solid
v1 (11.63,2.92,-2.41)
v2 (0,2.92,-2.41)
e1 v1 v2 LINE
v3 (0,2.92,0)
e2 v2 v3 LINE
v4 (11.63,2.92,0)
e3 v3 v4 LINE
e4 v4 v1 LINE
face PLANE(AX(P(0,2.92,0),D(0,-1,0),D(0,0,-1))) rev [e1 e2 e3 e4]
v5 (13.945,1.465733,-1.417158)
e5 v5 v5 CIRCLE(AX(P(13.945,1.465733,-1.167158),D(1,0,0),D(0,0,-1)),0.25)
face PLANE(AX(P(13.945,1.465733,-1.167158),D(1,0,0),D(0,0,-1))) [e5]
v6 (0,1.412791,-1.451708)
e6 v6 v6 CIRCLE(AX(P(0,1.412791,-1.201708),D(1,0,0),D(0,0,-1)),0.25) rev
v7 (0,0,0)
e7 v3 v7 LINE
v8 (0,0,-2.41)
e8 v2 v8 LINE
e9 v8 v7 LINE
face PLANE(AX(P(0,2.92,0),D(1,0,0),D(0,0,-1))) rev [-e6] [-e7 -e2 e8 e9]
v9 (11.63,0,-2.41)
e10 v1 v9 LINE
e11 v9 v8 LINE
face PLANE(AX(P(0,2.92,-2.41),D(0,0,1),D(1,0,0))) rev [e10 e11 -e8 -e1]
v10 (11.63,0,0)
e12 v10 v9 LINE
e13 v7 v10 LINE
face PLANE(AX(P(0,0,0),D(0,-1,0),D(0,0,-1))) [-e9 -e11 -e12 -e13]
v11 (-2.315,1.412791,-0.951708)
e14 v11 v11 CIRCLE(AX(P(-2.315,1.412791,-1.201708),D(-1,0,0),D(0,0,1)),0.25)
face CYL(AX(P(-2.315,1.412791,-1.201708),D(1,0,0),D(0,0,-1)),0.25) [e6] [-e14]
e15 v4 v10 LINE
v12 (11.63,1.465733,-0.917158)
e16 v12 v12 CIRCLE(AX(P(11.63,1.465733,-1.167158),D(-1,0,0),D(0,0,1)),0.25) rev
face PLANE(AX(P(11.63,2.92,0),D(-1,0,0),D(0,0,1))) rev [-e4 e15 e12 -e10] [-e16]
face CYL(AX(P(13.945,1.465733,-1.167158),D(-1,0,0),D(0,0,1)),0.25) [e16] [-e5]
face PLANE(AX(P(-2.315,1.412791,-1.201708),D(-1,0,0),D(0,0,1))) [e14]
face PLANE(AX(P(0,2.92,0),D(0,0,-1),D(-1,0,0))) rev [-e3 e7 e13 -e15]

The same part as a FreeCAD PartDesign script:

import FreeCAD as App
import Part
import Sketcher

V = App.Vector
Q = App.Units.Quantity

doc = App.newDocument("Part")
params = doc.addObject("Spreadsheet::Sheet", "Params")
for row, (alias, value) in enumerate([
    ("sketch1_width", "11.63 mm"),
    ("sketch1_height", "2.41 mm"),
    ("pad1_length", "2.92 mm"),
    ("sketch2_diameter", "0.5 mm"),
    ("pad2_length", "2.315 mm"),
    ("sketch3_diameter", "0.5 mm"),
    ("pad3_length", "2.315 mm"),
], start=1):
    params.set(f"A{row}", alias)
    params.set(f"B{row}", "=" + value)
    params.setAlias(f"B{row}", alias)

body = doc.addObject("PartDesign::Body", "Body")

# Sketch on XZ plane
sketch1 = doc.addObject("Sketcher::SketchObject", "Sketch")
body.addObject(sketch1)
sketch1.AttachmentSupport = (doc.XZ_Plane, [""])
sketch1.MapMode = "FlatFace"
sketch1.addGeometry([
    Part.LineSegment(V(0, -2.41, 0), V(0, 0, 0)),
    Part.LineSegment(V(0, 0, 0), V(11.63, 0, 0)),
    Part.LineSegment(V(11.63, 0, 0), V(11.63, -2.41, 0)),
    Part.LineSegment(V(11.63, -2.41, 0), V(0, -2.41, 0)),
], False)
sketch1.addConstraint([
    Sketcher.Constraint("Coincident", 0, 2, 1, 1),
    Sketcher.Constraint("Coincident", 1, 2, 2, 1),
    Sketcher.Constraint("Coincident", 2, 2, 3, 1),
    Sketcher.Constraint("Coincident", 3, 2, 0, 1),
    Sketcher.Constraint("Vertical", 0),
    Sketcher.Constraint("Horizontal", 1),
    Sketcher.Constraint("Vertical", 2),
    Sketcher.Constraint("Horizontal", 3),
    Sketcher.Constraint("Coincident", 0, 2, -1, 1),
    Sketcher.Constraint("DistanceX", 1, 1, 1, 2, Q("11.63 mm")),
    Sketcher.Constraint("DistanceY", 0, 1, 0, 2, Q("2.41 mm")),
])
sketch1.setExpression("Constraints[9]", "Params.sketch1_width")
sketch1.setExpression("Constraints[10]", "Params.sketch1_height")
pad1 = doc.addObject("PartDesign::Pad", "Pad")
body.addObject(pad1)
pad1.Profile = sketch1
pad1.setExpression("Length", "Params.pad1_length")
pad1.Reversed = True

# Sketch on YZ plane
sketch2 = doc.addObject("Sketcher::SketchObject", "Sketch001")
body.addObject(sketch2)
sketch2.AttachmentSupport = (doc.YZ_Plane, [""])
sketch2.MapMode = "FlatFace"
sketch2.AttachmentOffset = App.Placement(V(0, 0, 11.63), App.Rotation())
sketch2.addGeometry(Part.Circle(V(1.465733, -1.167158, 0), V(0, 0, 1), 0.25), False)
sketch2.addConstraint([
    Sketcher.Constraint("Diameter", 0, Q("0.5 mm")),
    Sketcher.Constraint("DistanceY", 0, 3, -1, 1, Q("1.167158 mm")),
    Sketcher.Constraint("DistanceX", -1, 1, 0, 3, Q("1.465733 mm")),
])
sketch2.setExpression("Constraints[0]", "Params.sketch2_diameter")
pad2 = doc.addObject("PartDesign::Pad", "Pad001")
body.addObject(pad2)
pad2.Profile = sketch2
pad2.setExpression("Length", "Params.pad2_length")

# Sketch on YZ plane
sketch3 = doc.addObject("Sketcher::SketchObject", "Sketch002")
body.addObject(sketch3)
sketch3.AttachmentSupport = (doc.YZ_Plane, [""])
sketch3.MapMode = "FlatFace"
sketch3.addGeometry(Part.Circle(V(1.412791, -1.201708, 0), V(0, 0, 1), 0.25), False)
sketch3.addConstraint([
    Sketcher.Constraint("Diameter", 0, Q("0.5 mm")),
    Sketcher.Constraint("DistanceX", -1, 1, 0, 3, Q("1.412791 mm")),
    Sketcher.Constraint("DistanceY", 0, 3, -1, 1, Q("1.201708 mm")),
])
sketch3.setExpression("Constraints[0]", "Params.sketch3_diameter")
pad3 = doc.addObject("PartDesign::Pad", "Pad002")
body.addObject(pad3)
pad3.Profile = sketch3
pad3.setExpression("Length", "Params.pad3_length")
pad3.Reversed = True

doc.recompute()
